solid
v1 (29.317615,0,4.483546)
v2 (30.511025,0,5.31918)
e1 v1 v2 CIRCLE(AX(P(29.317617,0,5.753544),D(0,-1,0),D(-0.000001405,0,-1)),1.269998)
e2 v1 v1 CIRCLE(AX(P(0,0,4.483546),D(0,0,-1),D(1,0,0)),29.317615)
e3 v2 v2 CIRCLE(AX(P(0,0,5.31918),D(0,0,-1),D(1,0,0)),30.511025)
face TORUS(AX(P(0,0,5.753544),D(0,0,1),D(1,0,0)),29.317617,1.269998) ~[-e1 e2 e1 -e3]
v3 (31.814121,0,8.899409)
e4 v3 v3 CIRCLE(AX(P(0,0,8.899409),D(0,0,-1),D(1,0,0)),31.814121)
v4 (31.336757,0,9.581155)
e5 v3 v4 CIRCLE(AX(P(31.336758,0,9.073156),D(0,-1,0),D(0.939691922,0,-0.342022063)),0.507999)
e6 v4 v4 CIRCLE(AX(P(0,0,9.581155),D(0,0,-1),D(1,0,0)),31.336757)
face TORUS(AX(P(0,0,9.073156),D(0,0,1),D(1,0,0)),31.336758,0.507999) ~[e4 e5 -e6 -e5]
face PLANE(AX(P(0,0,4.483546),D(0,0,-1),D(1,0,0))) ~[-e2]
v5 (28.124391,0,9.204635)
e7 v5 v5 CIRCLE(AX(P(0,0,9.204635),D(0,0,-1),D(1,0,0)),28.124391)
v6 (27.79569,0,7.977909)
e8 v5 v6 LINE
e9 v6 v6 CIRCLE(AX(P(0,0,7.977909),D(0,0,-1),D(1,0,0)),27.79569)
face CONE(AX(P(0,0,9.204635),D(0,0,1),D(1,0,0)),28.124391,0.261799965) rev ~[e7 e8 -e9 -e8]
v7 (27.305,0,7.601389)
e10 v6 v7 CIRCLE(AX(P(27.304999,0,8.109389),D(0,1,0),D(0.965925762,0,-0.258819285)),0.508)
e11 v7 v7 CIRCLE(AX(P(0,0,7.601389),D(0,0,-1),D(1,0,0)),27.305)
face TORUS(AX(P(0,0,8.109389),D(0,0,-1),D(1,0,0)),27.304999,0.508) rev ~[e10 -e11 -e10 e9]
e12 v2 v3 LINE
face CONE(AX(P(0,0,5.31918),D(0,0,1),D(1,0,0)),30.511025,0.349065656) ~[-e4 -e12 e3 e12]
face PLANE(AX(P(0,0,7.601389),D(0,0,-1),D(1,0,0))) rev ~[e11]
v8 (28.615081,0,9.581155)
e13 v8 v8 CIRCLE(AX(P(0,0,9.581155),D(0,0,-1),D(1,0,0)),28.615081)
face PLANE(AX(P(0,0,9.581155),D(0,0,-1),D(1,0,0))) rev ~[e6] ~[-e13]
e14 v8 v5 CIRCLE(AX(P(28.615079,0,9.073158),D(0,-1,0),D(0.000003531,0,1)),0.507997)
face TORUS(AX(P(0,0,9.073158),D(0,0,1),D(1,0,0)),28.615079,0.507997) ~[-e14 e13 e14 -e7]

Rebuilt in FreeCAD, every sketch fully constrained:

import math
import FreeCAD as App
import Part
import Sketcher

V = App.Vector
Q = App.Units.Quantity

doc = App.newDocument("Part")
body = doc.addObject("PartDesign::Body", "Body")

sketch1 = doc.addObject("Sketcher::SketchObject", "Sketch")
body.addObject(sketch1)
sketch1.AttachmentSupport = (doc.XZ_Plane, [""])
sketch1.MapMode = "FlatFace"
sketch1.addGeometry([
    Part.LineSegment(V(27.305, 7.601389, 0), V(0, 7.601389, 0)),
    Part.LineSegment(V(0, 7.601389, 0), V(0, 4.483546, 0)),
    Part.LineSegment(V(0, 4.483546, 0), V(29.317615, 4.483546, 0)),
    Part.ArcOfCircle(Part.Circle(V(29.317617, 5.753544, 0), V(0, 0, 1), 1.269998), math.radians(-90.00008), math.radians(-19.999963)),
    Part.LineSegment(V(30.511025, 5.31918, 0), V(31.814121, 8.899409, 0)),
    Part.ArcOfCircle(Part.Circle(V(31.336758, 9.073156, 0), V(0, 0, 1), 0.507999), math.radians(-20.000117), math.radians(90.000152)),
    Part.LineSegment(V(31.336757, 9.581155, 0), V(28.615081, 9.581155, 0)),
    Part.ArcOfCircle(Part.Circle(V(28.615079, 9.073158, 0), V(0, 0, 1), 0.507997), math.radians(89.999798), math.radians(165.000249)),
    Part.LineSegment(V(28.124391, 9.204635, 0), V(27.79569, 7.977909, 0)),
    Part.ArcOfCircle(Part.Circle(V(27.304999, 8.109389, 0), V(0, 0, 1), 0.508), math.radians(-89.999939), math.radians(-15.000014)),
], False)
sketch1.addConstraint([
    Sketcher.Constraint("Coincident", 0, 2, 1, 1),
    Sketcher.Constraint("Coincident", 1, 2, 2, 1),
    Sketcher.Constraint("Tangent", 2, 2, 3, 1),
    Sketcher.Constraint("Tangent", 3, 2, 4, 1),
    Sketcher.Constraint("Coincident", 4, 2, 5, 1),
    Sketcher.Constraint("Coincident", 5, 2, 6, 1),
    Sketcher.Constraint("Coincident", 6, 2, 7, 1),
    Sketcher.Constraint("Coincident", 7, 2, 8, 1),
    Sketcher.Constraint("Tangent", 8, 2, 9, 2),
    Sketcher.Constraint("Tangent", 9, 1, 0, 1),
    Sketcher.Constraint("Horizontal", 0),
    Sketcher.Constraint("Vertical", 1),
    Sketcher.Constraint("Horizontal", 2),
    Sketcher.Constraint("Horizontal", 6),
    Sketcher.Constraint("Equal", 5, 7),
    Sketcher.Constraint("Equal", 5, 9),
    Sketcher.Constraint("PointOnObject", 0, 2, -2),
    Sketcher.Constraint("Vertical", 7, 3, 6, 2),
    Sketcher.Constraint("Radius", 3, Q("0.0499999 in")),
    Sketcher.Constraint("Radius", 5, Q("0.02 in")),
    Sketcher.Constraint("Angle", 4, Q("70.000011 deg")),
    Sketcher.Constraint("Distance", 4, Q("0.15 in")),
    Sketcher.Constraint("Distance", 8, Q("0.05 in")),
    Sketcher.Constraint("DistanceX", 0, 2, 0, 1, Q("1.075 in")),
    Sketcher.Constraint("DistanceX", 8, 2, 7, 2, Q("0.328701 mm")),
    Sketcher.Constraint("DistanceX", 2, 1, 2, 2, Q("29.317615 mm")),
    Sketcher.Constraint("DistanceX", 6, 2, 6, 1, Q("2.721676 mm")),
    Sketcher.Constraint("DistanceY", 1, 2, 1, 1, Q("3.117843 mm")),
    Sketcher.Constraint("DistanceX", -1, 1, 5, 3, Q("31.336758 mm")),
    Sketcher.Constraint("DistanceY", -1, 1, 9, 3, Q("8.109389 mm")),
])
revolution = doc.addObject("PartDesign::Revolution", "Revolution")
body.addObject(revolution)
revolution.Profile = sketch1
revolution.ReferenceAxis = (sketch1, ["V_Axis"])
revolution.Angle = 360

doc.recompute()
